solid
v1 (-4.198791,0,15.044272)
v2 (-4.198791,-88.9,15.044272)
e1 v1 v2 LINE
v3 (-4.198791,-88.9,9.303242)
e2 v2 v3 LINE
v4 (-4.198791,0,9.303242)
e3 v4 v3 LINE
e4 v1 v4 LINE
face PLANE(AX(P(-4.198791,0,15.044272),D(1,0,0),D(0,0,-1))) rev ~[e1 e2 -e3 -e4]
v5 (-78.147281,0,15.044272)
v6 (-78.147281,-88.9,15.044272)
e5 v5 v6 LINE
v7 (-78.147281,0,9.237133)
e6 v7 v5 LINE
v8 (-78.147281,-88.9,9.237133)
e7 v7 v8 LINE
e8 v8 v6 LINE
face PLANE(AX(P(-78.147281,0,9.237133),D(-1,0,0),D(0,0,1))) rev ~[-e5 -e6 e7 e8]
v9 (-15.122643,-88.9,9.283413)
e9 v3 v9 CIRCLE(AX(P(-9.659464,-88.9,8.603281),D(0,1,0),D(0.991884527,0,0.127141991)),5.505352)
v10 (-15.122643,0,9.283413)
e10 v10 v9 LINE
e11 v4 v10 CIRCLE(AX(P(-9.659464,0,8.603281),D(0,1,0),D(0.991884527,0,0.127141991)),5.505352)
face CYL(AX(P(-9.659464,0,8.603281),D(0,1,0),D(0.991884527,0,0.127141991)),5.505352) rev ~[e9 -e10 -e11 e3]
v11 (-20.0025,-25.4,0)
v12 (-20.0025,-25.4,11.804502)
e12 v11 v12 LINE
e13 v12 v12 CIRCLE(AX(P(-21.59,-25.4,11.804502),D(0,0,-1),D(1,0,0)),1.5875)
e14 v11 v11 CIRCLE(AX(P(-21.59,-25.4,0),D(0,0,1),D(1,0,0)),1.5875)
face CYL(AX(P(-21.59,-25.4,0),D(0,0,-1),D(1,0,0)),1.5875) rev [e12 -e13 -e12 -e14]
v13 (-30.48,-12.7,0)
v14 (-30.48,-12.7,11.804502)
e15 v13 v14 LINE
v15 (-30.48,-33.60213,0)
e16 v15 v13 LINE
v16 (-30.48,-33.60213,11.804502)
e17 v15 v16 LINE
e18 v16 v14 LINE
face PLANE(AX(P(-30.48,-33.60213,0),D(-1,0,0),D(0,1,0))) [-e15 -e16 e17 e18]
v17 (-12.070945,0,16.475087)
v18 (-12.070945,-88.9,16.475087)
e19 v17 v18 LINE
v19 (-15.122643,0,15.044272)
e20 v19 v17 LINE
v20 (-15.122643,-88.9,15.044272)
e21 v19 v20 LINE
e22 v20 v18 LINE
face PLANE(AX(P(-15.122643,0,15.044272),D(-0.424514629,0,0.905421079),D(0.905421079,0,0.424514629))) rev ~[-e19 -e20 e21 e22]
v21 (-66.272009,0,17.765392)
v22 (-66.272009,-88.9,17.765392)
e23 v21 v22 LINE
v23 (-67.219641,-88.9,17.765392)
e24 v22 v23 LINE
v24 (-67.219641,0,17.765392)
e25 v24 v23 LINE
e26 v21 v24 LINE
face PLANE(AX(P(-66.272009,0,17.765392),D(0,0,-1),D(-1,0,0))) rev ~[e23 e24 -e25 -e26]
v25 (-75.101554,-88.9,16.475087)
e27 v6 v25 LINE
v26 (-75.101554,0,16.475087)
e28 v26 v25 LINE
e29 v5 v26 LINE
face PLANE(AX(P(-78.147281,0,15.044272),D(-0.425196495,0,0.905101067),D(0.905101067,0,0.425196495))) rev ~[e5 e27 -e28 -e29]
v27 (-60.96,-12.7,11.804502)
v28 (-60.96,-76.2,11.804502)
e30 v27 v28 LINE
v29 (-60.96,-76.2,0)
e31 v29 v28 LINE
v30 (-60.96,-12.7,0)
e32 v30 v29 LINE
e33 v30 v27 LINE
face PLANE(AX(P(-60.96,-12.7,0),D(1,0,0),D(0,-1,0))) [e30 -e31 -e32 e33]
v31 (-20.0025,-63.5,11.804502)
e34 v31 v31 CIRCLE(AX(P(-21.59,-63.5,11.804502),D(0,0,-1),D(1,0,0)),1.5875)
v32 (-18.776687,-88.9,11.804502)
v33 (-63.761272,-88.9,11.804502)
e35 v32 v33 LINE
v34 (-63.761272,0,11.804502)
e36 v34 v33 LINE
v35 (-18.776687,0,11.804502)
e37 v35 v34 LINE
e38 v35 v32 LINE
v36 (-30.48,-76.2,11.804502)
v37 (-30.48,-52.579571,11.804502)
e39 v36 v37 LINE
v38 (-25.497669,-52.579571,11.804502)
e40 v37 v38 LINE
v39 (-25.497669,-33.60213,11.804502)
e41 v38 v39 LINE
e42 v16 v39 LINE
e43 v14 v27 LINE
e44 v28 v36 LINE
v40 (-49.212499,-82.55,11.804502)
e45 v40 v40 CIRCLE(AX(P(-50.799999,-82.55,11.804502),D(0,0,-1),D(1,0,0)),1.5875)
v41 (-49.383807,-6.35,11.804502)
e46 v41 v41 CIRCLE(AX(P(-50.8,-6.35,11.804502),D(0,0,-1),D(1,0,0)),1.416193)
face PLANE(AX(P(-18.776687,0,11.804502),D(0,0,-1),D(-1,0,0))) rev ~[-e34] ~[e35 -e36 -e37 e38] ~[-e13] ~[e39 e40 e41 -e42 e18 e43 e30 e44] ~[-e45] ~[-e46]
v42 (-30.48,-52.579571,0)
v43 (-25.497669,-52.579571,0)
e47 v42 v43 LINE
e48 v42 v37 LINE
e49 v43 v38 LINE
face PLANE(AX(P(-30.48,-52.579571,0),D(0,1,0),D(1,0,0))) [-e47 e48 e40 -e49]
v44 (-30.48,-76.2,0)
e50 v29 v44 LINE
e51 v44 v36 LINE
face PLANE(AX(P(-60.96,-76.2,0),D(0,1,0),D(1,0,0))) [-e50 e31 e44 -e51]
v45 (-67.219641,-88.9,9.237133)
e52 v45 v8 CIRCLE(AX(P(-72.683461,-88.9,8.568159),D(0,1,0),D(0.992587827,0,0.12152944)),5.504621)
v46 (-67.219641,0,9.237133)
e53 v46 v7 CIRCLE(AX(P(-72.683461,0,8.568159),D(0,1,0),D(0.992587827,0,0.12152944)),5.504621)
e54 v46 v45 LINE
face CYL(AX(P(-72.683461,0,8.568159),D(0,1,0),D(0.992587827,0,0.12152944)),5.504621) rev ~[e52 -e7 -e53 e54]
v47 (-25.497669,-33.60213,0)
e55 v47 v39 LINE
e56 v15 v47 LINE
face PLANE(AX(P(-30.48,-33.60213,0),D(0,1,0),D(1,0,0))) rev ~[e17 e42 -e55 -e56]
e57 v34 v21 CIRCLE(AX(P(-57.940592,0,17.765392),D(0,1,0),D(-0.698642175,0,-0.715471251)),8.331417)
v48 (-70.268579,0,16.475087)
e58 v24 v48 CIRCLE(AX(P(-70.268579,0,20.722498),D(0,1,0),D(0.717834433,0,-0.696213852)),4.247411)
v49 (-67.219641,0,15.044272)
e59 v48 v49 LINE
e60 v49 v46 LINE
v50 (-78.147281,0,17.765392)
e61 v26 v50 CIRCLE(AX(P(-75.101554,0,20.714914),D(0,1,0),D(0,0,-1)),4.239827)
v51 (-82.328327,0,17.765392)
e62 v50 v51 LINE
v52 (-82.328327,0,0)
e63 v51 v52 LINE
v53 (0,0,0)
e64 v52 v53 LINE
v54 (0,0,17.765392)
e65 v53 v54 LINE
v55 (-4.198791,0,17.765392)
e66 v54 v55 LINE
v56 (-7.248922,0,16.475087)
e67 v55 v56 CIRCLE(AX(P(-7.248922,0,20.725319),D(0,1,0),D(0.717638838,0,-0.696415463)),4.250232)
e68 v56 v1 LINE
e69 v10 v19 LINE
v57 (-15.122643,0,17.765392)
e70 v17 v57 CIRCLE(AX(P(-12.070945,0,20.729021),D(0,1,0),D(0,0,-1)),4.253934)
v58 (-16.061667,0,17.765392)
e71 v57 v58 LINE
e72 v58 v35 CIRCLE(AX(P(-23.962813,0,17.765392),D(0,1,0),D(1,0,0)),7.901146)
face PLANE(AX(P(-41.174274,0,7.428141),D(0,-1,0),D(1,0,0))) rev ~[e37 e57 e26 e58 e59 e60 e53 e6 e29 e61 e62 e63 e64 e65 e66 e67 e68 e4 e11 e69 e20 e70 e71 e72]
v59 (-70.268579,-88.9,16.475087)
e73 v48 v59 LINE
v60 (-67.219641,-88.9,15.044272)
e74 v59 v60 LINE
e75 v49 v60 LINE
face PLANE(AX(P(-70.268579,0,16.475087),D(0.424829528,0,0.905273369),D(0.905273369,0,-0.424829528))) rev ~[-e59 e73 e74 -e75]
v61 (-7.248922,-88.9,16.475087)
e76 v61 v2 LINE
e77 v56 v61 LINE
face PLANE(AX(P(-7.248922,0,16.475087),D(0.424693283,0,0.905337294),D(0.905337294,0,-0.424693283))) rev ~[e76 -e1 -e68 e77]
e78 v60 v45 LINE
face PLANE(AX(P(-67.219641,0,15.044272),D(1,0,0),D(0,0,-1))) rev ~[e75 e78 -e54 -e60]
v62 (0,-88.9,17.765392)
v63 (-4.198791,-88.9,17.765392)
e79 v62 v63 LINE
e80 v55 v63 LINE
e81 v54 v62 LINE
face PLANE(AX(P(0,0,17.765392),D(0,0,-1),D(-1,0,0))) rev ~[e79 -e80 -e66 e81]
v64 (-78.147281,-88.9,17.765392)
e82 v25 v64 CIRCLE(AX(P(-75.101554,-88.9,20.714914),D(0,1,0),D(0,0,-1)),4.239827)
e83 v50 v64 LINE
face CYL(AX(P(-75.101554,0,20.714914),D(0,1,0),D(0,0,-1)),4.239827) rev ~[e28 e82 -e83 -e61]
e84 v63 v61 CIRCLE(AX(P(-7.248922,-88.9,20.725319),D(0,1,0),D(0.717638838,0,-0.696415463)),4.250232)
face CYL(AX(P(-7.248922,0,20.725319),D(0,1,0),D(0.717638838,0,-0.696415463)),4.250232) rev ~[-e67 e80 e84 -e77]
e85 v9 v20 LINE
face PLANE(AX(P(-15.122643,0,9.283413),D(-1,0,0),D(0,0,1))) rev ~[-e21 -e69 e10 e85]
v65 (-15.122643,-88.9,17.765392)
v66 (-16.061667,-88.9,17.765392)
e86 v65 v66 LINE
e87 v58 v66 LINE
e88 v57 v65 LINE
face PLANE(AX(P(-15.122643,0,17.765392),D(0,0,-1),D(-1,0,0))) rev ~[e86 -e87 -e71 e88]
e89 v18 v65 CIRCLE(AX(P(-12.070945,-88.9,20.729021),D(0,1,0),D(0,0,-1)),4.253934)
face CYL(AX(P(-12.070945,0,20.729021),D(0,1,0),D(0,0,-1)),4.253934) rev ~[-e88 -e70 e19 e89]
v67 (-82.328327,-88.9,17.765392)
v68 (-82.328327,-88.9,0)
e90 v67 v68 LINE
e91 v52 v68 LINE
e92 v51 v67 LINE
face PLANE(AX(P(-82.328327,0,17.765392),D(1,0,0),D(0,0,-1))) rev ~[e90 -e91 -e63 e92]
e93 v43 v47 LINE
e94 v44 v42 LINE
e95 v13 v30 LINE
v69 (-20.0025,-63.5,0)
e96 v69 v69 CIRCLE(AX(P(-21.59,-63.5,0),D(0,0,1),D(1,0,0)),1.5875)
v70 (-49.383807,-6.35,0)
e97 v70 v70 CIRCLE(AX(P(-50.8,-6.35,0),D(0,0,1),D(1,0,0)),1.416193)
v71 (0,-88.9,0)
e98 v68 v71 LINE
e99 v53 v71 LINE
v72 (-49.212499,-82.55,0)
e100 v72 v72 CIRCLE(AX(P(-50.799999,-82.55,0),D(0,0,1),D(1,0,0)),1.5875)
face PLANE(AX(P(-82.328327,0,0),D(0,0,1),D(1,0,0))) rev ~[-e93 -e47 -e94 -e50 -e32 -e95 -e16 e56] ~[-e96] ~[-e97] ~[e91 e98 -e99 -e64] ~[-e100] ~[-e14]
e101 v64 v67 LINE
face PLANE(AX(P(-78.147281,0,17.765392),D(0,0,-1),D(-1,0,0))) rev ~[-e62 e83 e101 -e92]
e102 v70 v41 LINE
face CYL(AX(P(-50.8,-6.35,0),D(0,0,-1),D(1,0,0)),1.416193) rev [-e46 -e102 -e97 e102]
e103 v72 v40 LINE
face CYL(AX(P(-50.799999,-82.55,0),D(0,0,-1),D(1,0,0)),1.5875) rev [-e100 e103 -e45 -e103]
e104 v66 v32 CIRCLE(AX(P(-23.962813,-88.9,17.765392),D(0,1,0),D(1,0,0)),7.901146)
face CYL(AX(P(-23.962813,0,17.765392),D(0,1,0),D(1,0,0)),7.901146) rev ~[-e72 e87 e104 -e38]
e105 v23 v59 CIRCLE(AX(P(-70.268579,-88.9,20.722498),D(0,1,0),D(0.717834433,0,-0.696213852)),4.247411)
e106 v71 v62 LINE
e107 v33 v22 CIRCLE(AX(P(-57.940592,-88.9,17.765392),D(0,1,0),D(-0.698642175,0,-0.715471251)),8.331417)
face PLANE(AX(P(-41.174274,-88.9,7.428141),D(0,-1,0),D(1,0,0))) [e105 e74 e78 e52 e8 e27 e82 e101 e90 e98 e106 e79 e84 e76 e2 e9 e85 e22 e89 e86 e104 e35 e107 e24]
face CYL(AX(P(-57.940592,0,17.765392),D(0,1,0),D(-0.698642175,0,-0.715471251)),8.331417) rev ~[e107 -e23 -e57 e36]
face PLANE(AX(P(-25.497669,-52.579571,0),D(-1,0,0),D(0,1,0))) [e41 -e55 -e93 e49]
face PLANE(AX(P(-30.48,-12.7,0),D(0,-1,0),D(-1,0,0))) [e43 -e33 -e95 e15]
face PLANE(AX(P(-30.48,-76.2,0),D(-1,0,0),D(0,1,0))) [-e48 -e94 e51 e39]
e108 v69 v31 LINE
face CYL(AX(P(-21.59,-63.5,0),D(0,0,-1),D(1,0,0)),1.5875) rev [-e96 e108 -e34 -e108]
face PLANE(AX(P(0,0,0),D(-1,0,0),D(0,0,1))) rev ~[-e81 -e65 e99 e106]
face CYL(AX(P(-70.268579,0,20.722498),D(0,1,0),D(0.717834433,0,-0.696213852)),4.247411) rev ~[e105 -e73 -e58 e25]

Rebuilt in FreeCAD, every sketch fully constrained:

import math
import FreeCAD as App
import Part
import Sketcher
from FreeCAD import Vector
Q = App.Units.Quantity

doc = App.newDocument("Part")
params = doc.addObject("Spreadsheet::Sheet", "Params")
for row, (alias, value) in enumerate([
    ("pad1_length", "3.5 in"),
    ("sketch2_width", "1.2 in"),
    ("sketch2_height", "2.5 in"),
    ("pocket1_length", "5 in"),
    ("sketch3_diameter", "0.125 in"),
    ("pocket2_length", "5 in"),
    ("sketch4_diameter", "0.125 in"),
    ("pocket3_length", "3 in"),
], start=1):
    params.set(f"A{row}", alias)
    params.set(f"B{row}", "=" + value)
    params.setAlias(f"B{row}", alias)

body = doc.addObject("PartDesign::Body", "Body")

# Sketch on XZ plane
sketch1 = body.newObject("Sketcher::SketchObject", "Sketch")
sketch1.AttachmentSupport = (doc.getObject("XZ_Plane"), [""])
sketch1.MapMode = "FlatFace"
sketch1.addGeometry([
    Part.LineSegment(Vector(0, 0, 0), Vector(0, 17.765392, 0)),  # 0
    Part.LineSegment(Vector(0, 17.765392, 0), Vector(-4.198791, 17.765392, 0)),  # 1
    Part.ArcOfCircle(Part.Circle(Vector(-7.248922, 20.725319, 0), Vector(0, 0, 1), 4.250232), math.radians(-90), math.radians(-44.140119)),  # 2
    Part.LineSegment(Vector(-7.248922, 16.475087, 0), Vector(-4.198791, 15.044272, 0)),  # 3
    Part.LineSegment(Vector(-4.198791, 15.044272, 0), Vector(-4.198791, 9.303242, 0)),  # 4
    Part.ArcOfCircle(Part.Circle(Vector(-9.659464, 8.603281, 0), Vector(0, 0, 1), 5.505352), math.radians(172.903537), math.radians(367.30447)),  # 5
    Part.LineSegment(Vector(-15.122643, 9.283413, 0), Vector(-15.122643, 15.044272, 0)),  # 6
    Part.LineSegment(Vector(-15.122643, 15.044272, 0), Vector(-12.070945, 16.475087, 0)),  # 7
    Part.ArcOfCircle(Part.Circle(Vector(-12.070945, 20.729021, 0), Vector(0, 0, 1), 4.253934), math.radians(-135.838779), math.radians(-90)),  # 8
    Part.LineSegment(Vector(-15.122643, 17.765392, 0), Vector(-16.061667, 17.765392, 0)),  # 9
    Part.ArcOfCircle(Part.Circle(Vector(-23.962813, 17.765392, 0), Vector(0, 0, 1), 7.901146), math.radians(-48.975895), math.radians(0)),  # 10
    Part.LineSegment(Vector(-18.776687, 11.804502, 0), Vector(-63.761272, 11.804502, 0)),  # 11
    Part.ArcOfCircle(Part.Circle(Vector(-57.940592, 17.765392, 0), Vector(0, 0, 1), 8.331417), math.radians(180), math.radians(225.681833)),  # 12
    Part.LineSegment(Vector(-66.272009, 17.765392, 0), Vector(-67.219641, 17.765392, 0)),  # 13
    Part.ArcOfCircle(Part.Circle(Vector(-70.268579, 20.722498, 0), Vector(0, 0, 1), 4.247411), math.radians(-90), math.radians(-44.124025)),  # 14
    Part.LineSegment(Vector(-70.268579, 16.475087, 0), Vector(-67.219641, 15.044272, 0)),  # 15
    Part.LineSegment(Vector(-67.219641, 15.044272, 0), Vector(-67.219641, 9.237133, 0)),  # 16
    Part.ArcOfCircle(Part.Circle(Vector(-72.683461, 8.568159, 0), Vector(0, 0, 1), 5.504621), math.radians(173.019621), math.radians(366.980379)),  # 17
    Part.LineSegment(Vector(-78.147281, 9.237133, 0), Vector(-78.147281, 15.044272, 0)),  # 18
    Part.LineSegment(Vector(-78.147281, 15.044272, 0), Vector(-75.101554, 16.475087, 0)),  # 19
    Part.ArcOfCircle(Part.Circle(Vector(-75.101554, 20.714914, 0), Vector(0, 0, 1), 4.239827), math.radians(-135.919332), math.radians(-90)),  # 20
    Part.LineSegment(Vector(-78.147281, 17.765392, 0), Vector(-82.328327, 17.765392, 0)),  # 21
    Part.LineSegment(Vector(-82.328327, 17.765392, 0), Vector(-82.328327, 0, 0)),  # 22
    Part.LineSegment(Vector(-82.328327, 0, 0), Vector(0, 0, 0)),  # 23
], False)
sketch1.addConstraint([
    Sketcher.Constraint("Coincident", 0, 2, 1, 1),
    Sketcher.Constraint("Coincident", 1, 2, 2, 2),
    Sketcher.Constraint("Coincident", 2, 1, 3, 1),
    Sketcher.Constraint("Coincident", 3, 2, 4, 1),
    Sketcher.Constraint("Coincident", 4, 2, 5, 2),
    Sketcher.Constraint("Coincident", 5, 1, 6, 1),
    Sketcher.Constraint("Coincident", 6, 2, 7, 1),
    Sketcher.Constraint("Coincident", 7, 2, 8, 2),
    Sketcher.Constraint("Coincident", 8, 1, 9, 1),
    Sketcher.Constraint("Coincident", 9, 2, 10, 2),
    Sketcher.Constraint("Coincident", 10, 1, 11, 1),
    Sketcher.Constraint("Coincident", 11, 2, 12, 2),
    Sketcher.Constraint("Coincident", 12, 1, 13, 1),
    Sketcher.Constraint("Coincident", 13, 2, 14, 2),
    Sketcher.Constraint("Coincident", 14, 1, 15, 1),
    Sketcher.Constraint("Coincident", 15, 2, 16, 1),
    Sketcher.Constraint("Coincident", 16, 2, 17, 2),
    Sketcher.Constraint("Coincident", 17, 1, 18, 1),
    Sketcher.Constraint("Coincident", 18, 2, 19, 1),
    Sketcher.Constraint("Coincident", 19, 2, 20, 2),
    Sketcher.Constraint("Coincident", 20, 1, 21, 1),
    Sketcher.Constraint("Coincident", 21, 2, 22, 1),
    Sketcher.Constraint("Coincident", 22, 2, 23, 1),
    Sketcher.Constraint("Coincident", 23, 2, 0, 1),
    Sketcher.Constraint("Vertical", 0),
    Sketcher.Constraint("Horizontal", 1),
    Sketcher.Constraint("Vertical", 4),
    Sketcher.Constraint("Vertical", 6),
    Sketcher.Constraint("Horizontal", 9),
    Sketcher.Constraint("Horizontal", 11),
    Sketcher.Constraint("Horizontal", 13),
    Sketcher.Constraint("Vertical", 16),
    Sketcher.Constraint("Vertical", 18),
    Sketcher.Constraint("Horizontal", 21),
    Sketcher.Constraint("Vertical", 22),
    Sketcher.Constraint("Horizontal", 23),
    Sketcher.Constraint("Coincident", 23, 2, -1, 1),
    Sketcher.Constraint("Horizontal", 10, 3, 12, 3),
    Sketcher.Constraint("Horizontal", 12, 3, 0, 2),
    Sketcher.Constraint("Horizontal", 3, 2, 6, 2),
    Sketcher.Constraint("Horizontal", 2, 1, 7, 2),
    Sketcher.Constraint("Horizontal", 1, 2, 8, 1),
    Sketcher.Constraint("Horizontal", 9, 2, 12, 1),
    Sketcher.Constraint("Horizontal", 7, 2, 14, 1),
    Sketcher.Constraint("Horizontal", 6, 2, 15, 2),
    Sketcher.Constraint("Horizontal", 16, 2, 17, 1),
    Sketcher.Constraint("Horizontal", 15, 2, 18, 2),
    Sketcher.Constraint("Horizontal", 14, 1, 19, 2),
    Sketcher.Constraint("Horizontal", 13, 2, 20, 1),
    Sketcher.Constraint("Vertical", 1, 2, 3, 2),
    Sketcher.Constraint("Vertical", 8, 3, 7, 2),
    Sketcher.Constraint("Vertical", 6, 2, 8, 1),
    Sketcher.Constraint("Vertical", 13, 2, 15, 2),
    Sketcher.Constraint("Vertical", 20, 3, 19, 2),
    Sketcher.Constraint("Vertical", 18, 2, 20, 1),
    Sketcher.Constraint("Radius", 2, 4.250232),
    Sketcher.Constraint("Radius", 14, 4.247411),
    Sketcher.Constraint("Radius", 17, 5.504621),
    Sketcher.Constraint("Radius", 5, 5.505352),
    Sketcher.Constraint("Radius", 8, 4.253934),
    Sketcher.Constraint("Radius", 10, 7.901146),
    Sketcher.Constraint("Radius", 12, 8.331417),
    Sketcher.Constraint("Radius", 20, 4.239827),
    Sketcher.Constraint("DistanceX", 1, 2, 1, 1, 4.198791),
    Sketcher.Constraint("DistanceX", 13, 2, 13, 1, 0.947632),
    Sketcher.Constraint("DistanceY", 0, 1, 0, 2, 17.765392),
    Sketcher.Constraint("DistanceY", 4, 2, 4, 1, 5.74103),
    Sketcher.Constraint("DistanceY", 6, 1, 6, 2, 5.760859),
    Sketcher.Constraint("DistanceY", 16, 2, 16, 1, 5.807139),
    Sketcher.Constraint("DistanceX", 9, 2, 9, 1, 0.939025),
    Sketcher.Constraint("DistanceX", 11, 2, 11, 1, 44.984585),
    Sketcher.Constraint("DistanceX", 21, 2, 21, 1, 4.181046),
    Sketcher.Constraint("DistanceX", 23, 1, 23, 2, 82.328327),
    Sketcher.Constraint("DistanceX", 2, 3, -1, 1, 7.248922),
    Sketcher.Constraint("DistanceY", -1, 1, 5, 3, 8.603281),
    Sketcher.Constraint("DistanceX", 14, 3, -1, 1, 70.268579),
    Sketcher.Constraint("DistanceY", -1, 1, 17, 3, 8.568159),
    Sketcher.Constraint("DistanceX", 2, 1, -1, 1, 7.248922),
    Sketcher.Constraint("DistanceX", 14, 1, -1, 1, 70.268579),
])
pad1 = body.newObject("PartDesign::Pad", "Pad")
pad1.Profile = sketch1
pad1.setExpression("Length", "Params.pad1_length")

# Sketch on XY plane
sketch2 = body.newObject("Sketcher::SketchObject", "Sketch001")
sketch2.AttachmentSupport = (doc.getObject("XY_Plane"), [""])
sketch2.MapMode = "FlatFace"
sketch2.addGeometry([
    Part.LineSegment(Vector(-30.48, -12.7, 0), Vector(-60.96, -12.7, 0)),  # 0
    Part.LineSegment(Vector(-60.96, -12.7, 0), Vector(-60.96, -76.2, 0)),  # 1
    Part.LineSegment(Vector(-60.96, -76.2, 0), Vector(-30.48, -76.2, 0)),  # 2
    Part.LineSegment(Vector(-30.48, -76.2, 0), Vector(-30.48, -52.579571, 0)),  # 3
    Part.LineSegment(Vector(-30.48, -52.579571, 0), Vector(-25.497669, -52.579571, 0)),  # 4
    Part.LineSegment(Vector(-25.497669, -52.579571, 0), Vector(-25.497669, -33.60213, 0)),  # 5
    Part.LineSegment(Vector(-25.497669, -33.60213, 0), Vector(-30.48, -33.60213, 0)),  # 6
    Part.LineSegment(Vector(-30.48, -33.60213, 0), Vector(-30.48, -12.7, 0)),  # 7
], False)
sketch2.addConstraint([
    Sketcher.Constraint("Coincident", 0, 2, 1, 1),
    Sketcher.Constraint("Coincident", 1, 2, 2, 1),
    Sketcher.Constraint("Coincident", 2, 2, 3, 1),
    Sketcher.Constraint("Coincident", 3, 2, 4, 1),
    Sketcher.Constraint("Coincident", 4, 2, 5, 1),
    Sketcher.Constraint("Coincident", 5, 2, 6, 1),
    Sketcher.Constraint("Coincident", 6, 2, 7, 1),
    Sketcher.Constraint("Coincident", 7, 2, 0, 1),
    Sketcher.Constraint("Horizontal", 0),
    Sketcher.Constraint("Vertical", 1),
    Sketcher.Constraint("Horizontal", 2),
    Sketcher.Constraint("Vertical", 3),
    Sketcher.Constraint("Horizontal", 4),
    Sketcher.Constraint("Vertical", 5),
    Sketcher.Constraint("Horizontal", 6),
    Sketcher.Constraint("Vertical", 7),
    Sketcher.Constraint("Vertical", 3, 2, 6, 2),
    Sketcher.Constraint("DistanceX", 0, 2, 0, 1, Q("1.2 in")),
    Sketcher.Constraint("DistanceY", 1, 2, 1, 1, Q("2.5 in")),
    Sketcher.Constraint("DistanceY", 1, 2, -1, 1, Q("3 in")),
    Sketcher.Constraint("DistanceX", 0, 2, -1, 1, Q("2.4 in")),
    Sketcher.Constraint("DistanceX", 4, 1, 4, 2, 4.982331),
    Sketcher.Constraint("DistanceY", 3, 1, 3, 2, 23.620429),
    Sketcher.Constraint("DistanceY", 5, 1, 5, 2, 18.977441),
])
sketch2.setExpression("Constraints[17]", "Params.sketch2_width")
sketch2.setExpression("Constraints[18]", "Params.sketch2_height")
pocket1 = body.newObject("PartDesign::Pocket", "Pocket")
pocket1.Profile = sketch2
pocket1.setExpression("Length", "Params.pocket1_length")
pocket1.Reversed = True

# Sketch on XY plane
sketch3 = body.newObject("Sketcher::SketchObject", "Sketch002")
sketch3.AttachmentSupport = (doc.getObject("XY_Plane"), [""])
sketch3.MapMode = "FlatFace"
sketch3.addGeometry([
    Part.Circle(Vector(-21.59, -25.4, 0), Vector(0, 0, 1), 1.5875),
    Part.Circle(Vector(-21.59, -63.5, 0), Vector(0, 0, 1), 1.5875),
], False)
sketch3.addConstraint([
    Sketcher.Constraint("Equal", 0, 1),
    Sketcher.Constraint("Vertical", 0, 3, 1, 3),
    Sketcher.Constraint("Diameter", 0, Q("0.125 in")),
    Sketcher.Constraint("DistanceY", 0, 3, -1, 1, Q("1 in")),
    Sketcher.Constraint("DistanceY", 1, 3, -1, 1, Q("2.5 in")),
    Sketcher.Constraint("DistanceX", 0, 3, -1, 1, Q("0.85 in")),
])
sketch3.setExpression("Constraints[2]", "Params.sketch3_diameter")
pocket2 = body.newObject("PartDesign::Pocket", "Pocket001")
pocket2.Profile = sketch3
pocket2.setExpression("Length", "Params.pocket2_length")
pocket2.Reversed = True

# Sketch on XY plane
sketch4 = body.newObject("Sketcher::SketchObject", "Sketch003")
sketch4.AttachmentSupport = (doc.getObject("XY_Plane"), [""])
sketch4.MapMode = "FlatFace"
sketch4.addGeometry([
    Part.Circle(Vector(-50.8, -6.35, 0), Vector(0, 0, 1), 1.416193),
    Part.Circle(Vector(-50.799999, -82.55, 0), Vector(0, 0, 1), 1.5875),
], False)
sketch4.addConstraint([
    Sketcher.Constraint("Vertical", 0, 3, 1, 3),
    Sketcher.Constraint("Diameter", 1, Q("0.125 in")),
    Sketcher.Constraint("DistanceX", 0, 3, -1, 1, Q("2 in")),
    Sketcher.Constraint("DistanceY", 1, 3, 0, 3, Q("3 in")),
    Sketcher.Constraint("DistanceY", 0, 3, -1, 1, Q("0.25 in")),
    Sketcher.Constraint("Diameter", 0, 2.832385),
])
sketch4.setExpression("Constraints[1]", "Params.sketch4_diameter")
pocket3 = body.newObject("PartDesign::Pocket", "Pocket002")
pocket3.Profile = sketch4
pocket3.setExpression("Length", "Params.pocket3_length")
pocket3.Reversed = True

doc.recompute()
